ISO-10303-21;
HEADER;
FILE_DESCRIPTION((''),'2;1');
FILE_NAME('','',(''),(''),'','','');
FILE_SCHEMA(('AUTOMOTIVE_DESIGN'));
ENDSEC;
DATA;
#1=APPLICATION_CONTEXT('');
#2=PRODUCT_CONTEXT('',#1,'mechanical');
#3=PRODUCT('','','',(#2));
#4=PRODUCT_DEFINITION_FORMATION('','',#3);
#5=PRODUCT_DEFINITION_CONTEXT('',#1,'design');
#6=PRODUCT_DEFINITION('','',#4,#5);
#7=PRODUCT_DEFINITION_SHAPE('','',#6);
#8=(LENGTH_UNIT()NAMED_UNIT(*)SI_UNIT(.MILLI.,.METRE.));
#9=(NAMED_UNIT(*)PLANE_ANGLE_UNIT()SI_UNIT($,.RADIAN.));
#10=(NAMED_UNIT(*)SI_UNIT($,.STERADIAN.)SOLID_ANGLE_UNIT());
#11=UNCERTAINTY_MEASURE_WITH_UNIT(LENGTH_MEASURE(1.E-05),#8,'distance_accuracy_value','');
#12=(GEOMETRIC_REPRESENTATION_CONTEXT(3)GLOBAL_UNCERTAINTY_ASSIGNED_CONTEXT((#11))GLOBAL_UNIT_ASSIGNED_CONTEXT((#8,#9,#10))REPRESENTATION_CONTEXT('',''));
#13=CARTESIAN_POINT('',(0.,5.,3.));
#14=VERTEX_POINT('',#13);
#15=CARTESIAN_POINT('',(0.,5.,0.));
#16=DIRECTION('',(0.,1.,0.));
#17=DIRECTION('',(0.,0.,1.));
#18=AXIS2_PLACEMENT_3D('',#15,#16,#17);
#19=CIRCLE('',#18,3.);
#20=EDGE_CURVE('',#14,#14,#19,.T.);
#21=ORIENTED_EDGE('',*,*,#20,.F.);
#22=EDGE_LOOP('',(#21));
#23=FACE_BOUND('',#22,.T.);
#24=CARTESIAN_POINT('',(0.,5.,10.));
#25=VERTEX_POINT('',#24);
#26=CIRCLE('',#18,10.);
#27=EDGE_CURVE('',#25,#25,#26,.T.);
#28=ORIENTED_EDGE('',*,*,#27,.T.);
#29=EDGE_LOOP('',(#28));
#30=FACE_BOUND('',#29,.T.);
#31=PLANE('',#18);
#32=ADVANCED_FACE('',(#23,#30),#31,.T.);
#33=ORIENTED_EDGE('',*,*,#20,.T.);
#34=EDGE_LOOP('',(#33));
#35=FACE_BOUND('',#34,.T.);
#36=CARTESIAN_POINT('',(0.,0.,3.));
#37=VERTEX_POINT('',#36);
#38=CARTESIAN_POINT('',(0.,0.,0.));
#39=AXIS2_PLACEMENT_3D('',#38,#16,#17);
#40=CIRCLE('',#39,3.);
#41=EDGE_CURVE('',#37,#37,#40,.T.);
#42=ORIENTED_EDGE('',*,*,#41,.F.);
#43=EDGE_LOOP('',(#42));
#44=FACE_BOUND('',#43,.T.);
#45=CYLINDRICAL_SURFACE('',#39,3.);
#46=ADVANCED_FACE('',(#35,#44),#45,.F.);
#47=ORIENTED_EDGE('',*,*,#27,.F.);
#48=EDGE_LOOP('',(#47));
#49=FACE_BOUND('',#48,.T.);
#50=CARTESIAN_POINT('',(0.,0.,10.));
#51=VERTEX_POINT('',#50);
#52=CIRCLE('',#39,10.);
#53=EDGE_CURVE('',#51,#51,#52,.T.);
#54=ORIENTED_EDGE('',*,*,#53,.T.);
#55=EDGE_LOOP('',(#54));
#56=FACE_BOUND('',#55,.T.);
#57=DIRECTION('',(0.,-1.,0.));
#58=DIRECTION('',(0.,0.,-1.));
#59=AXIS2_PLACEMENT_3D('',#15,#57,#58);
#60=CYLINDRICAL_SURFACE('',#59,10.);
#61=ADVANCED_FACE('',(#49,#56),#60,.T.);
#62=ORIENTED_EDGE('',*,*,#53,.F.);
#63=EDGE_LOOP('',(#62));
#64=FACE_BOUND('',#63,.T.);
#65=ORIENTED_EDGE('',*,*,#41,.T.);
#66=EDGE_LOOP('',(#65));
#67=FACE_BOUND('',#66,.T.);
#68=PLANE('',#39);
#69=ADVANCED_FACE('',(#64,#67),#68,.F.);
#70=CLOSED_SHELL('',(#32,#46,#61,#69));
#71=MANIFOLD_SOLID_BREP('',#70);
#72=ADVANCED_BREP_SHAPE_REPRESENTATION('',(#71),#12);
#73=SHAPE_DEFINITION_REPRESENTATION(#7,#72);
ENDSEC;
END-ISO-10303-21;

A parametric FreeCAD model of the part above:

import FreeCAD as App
import Part
import Sketcher
Q = App.Units.Quantity

doc = App.newDocument("Part")
body = doc.addObject("PartDesign::Body", "Body")

sketch1 = doc.addObject("Sketcher::SketchObject", "Sketch")
body.addObject(sketch1)
sketch1.AttachmentSupport = (doc.XZ_Plane, [""])
sketch1.MapMode = "FlatFace"
sketch1.addGeometry(Part.Circle(App.Vector(0, 0, 0), App.Vector(0, 0, 1), 10), False)
sketch1.addConstraint([
    Sketcher.Constraint("Coincident", 0, 3, -1, 1),
    Sketcher.Constraint("Diameter", 0, Q("20 mm")),
])
pad1 = doc.addObject("PartDesign::Pad", "Pad")
body.addObject(pad1)
pad1.Profile = sketch1
pad1.Length = 5
pad1.Reversed = True

sketch2 = doc.addObject("Sketcher::SketchObject", "Sketch001")
body.addObject(sketch2)
sketch2.AttachmentSupport = (doc.XZ_Plane, [""])
sketch2.MapMode = "FlatFace"
sketch2.AttachmentOffset = App.Placement(App.Vector(0, 0, -5), App.Rotation())
sketch2.addGeometry(Part.Circle(App.Vector(0, 0, 0), App.Vector(0, 0, 1), 3), False)
sketch2.addConstraint([
    Sketcher.Constraint("Coincident", 0, 3, -1, 1),
    Sketcher.Constraint("Diameter", 0, Q("6 mm")),
])
pocket1 = doc.addObject("PartDesign::Pocket", "Pocket")
body.addObject(pocket1)
pocket1.Profile = sketch2
pocket1.Type = "ThroughAll"
pocket1.Reversed = True

doc.recompute()
